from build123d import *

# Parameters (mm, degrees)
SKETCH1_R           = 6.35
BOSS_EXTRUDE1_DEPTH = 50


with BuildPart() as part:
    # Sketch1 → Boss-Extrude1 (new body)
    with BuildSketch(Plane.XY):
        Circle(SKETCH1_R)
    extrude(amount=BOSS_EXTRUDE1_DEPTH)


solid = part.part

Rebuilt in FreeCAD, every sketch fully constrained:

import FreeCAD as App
import Part
import Sketcher

V = App.Vector

doc = App.newDocument("Part")
body = doc.addObject("PartDesign::Body", "Body")

# Sketch on XY plane
sketch1 = body.newObject("Sketcher::SketchObject", "Sketch")
sketch1.AttachmentSupport = (doc.getObject("XY_Plane"), [""])
sketch1.MapMode = "FlatFace"
sketch1.addGeometry(Part.Circle(V(0, 0, 0), V(0, 0, 1), 6.35), False)
sketch1.addConstraint([
    Sketcher.Constraint("Coincident", 0, 3, -1, 1),
    Sketcher.Constraint("Diameter", 0, 12.7),
])
pad1 = body.newObject("PartDesign::Pad", "Pad")
pad1.Profile = sketch1
pad1.Length = 50

doc.recompute()
